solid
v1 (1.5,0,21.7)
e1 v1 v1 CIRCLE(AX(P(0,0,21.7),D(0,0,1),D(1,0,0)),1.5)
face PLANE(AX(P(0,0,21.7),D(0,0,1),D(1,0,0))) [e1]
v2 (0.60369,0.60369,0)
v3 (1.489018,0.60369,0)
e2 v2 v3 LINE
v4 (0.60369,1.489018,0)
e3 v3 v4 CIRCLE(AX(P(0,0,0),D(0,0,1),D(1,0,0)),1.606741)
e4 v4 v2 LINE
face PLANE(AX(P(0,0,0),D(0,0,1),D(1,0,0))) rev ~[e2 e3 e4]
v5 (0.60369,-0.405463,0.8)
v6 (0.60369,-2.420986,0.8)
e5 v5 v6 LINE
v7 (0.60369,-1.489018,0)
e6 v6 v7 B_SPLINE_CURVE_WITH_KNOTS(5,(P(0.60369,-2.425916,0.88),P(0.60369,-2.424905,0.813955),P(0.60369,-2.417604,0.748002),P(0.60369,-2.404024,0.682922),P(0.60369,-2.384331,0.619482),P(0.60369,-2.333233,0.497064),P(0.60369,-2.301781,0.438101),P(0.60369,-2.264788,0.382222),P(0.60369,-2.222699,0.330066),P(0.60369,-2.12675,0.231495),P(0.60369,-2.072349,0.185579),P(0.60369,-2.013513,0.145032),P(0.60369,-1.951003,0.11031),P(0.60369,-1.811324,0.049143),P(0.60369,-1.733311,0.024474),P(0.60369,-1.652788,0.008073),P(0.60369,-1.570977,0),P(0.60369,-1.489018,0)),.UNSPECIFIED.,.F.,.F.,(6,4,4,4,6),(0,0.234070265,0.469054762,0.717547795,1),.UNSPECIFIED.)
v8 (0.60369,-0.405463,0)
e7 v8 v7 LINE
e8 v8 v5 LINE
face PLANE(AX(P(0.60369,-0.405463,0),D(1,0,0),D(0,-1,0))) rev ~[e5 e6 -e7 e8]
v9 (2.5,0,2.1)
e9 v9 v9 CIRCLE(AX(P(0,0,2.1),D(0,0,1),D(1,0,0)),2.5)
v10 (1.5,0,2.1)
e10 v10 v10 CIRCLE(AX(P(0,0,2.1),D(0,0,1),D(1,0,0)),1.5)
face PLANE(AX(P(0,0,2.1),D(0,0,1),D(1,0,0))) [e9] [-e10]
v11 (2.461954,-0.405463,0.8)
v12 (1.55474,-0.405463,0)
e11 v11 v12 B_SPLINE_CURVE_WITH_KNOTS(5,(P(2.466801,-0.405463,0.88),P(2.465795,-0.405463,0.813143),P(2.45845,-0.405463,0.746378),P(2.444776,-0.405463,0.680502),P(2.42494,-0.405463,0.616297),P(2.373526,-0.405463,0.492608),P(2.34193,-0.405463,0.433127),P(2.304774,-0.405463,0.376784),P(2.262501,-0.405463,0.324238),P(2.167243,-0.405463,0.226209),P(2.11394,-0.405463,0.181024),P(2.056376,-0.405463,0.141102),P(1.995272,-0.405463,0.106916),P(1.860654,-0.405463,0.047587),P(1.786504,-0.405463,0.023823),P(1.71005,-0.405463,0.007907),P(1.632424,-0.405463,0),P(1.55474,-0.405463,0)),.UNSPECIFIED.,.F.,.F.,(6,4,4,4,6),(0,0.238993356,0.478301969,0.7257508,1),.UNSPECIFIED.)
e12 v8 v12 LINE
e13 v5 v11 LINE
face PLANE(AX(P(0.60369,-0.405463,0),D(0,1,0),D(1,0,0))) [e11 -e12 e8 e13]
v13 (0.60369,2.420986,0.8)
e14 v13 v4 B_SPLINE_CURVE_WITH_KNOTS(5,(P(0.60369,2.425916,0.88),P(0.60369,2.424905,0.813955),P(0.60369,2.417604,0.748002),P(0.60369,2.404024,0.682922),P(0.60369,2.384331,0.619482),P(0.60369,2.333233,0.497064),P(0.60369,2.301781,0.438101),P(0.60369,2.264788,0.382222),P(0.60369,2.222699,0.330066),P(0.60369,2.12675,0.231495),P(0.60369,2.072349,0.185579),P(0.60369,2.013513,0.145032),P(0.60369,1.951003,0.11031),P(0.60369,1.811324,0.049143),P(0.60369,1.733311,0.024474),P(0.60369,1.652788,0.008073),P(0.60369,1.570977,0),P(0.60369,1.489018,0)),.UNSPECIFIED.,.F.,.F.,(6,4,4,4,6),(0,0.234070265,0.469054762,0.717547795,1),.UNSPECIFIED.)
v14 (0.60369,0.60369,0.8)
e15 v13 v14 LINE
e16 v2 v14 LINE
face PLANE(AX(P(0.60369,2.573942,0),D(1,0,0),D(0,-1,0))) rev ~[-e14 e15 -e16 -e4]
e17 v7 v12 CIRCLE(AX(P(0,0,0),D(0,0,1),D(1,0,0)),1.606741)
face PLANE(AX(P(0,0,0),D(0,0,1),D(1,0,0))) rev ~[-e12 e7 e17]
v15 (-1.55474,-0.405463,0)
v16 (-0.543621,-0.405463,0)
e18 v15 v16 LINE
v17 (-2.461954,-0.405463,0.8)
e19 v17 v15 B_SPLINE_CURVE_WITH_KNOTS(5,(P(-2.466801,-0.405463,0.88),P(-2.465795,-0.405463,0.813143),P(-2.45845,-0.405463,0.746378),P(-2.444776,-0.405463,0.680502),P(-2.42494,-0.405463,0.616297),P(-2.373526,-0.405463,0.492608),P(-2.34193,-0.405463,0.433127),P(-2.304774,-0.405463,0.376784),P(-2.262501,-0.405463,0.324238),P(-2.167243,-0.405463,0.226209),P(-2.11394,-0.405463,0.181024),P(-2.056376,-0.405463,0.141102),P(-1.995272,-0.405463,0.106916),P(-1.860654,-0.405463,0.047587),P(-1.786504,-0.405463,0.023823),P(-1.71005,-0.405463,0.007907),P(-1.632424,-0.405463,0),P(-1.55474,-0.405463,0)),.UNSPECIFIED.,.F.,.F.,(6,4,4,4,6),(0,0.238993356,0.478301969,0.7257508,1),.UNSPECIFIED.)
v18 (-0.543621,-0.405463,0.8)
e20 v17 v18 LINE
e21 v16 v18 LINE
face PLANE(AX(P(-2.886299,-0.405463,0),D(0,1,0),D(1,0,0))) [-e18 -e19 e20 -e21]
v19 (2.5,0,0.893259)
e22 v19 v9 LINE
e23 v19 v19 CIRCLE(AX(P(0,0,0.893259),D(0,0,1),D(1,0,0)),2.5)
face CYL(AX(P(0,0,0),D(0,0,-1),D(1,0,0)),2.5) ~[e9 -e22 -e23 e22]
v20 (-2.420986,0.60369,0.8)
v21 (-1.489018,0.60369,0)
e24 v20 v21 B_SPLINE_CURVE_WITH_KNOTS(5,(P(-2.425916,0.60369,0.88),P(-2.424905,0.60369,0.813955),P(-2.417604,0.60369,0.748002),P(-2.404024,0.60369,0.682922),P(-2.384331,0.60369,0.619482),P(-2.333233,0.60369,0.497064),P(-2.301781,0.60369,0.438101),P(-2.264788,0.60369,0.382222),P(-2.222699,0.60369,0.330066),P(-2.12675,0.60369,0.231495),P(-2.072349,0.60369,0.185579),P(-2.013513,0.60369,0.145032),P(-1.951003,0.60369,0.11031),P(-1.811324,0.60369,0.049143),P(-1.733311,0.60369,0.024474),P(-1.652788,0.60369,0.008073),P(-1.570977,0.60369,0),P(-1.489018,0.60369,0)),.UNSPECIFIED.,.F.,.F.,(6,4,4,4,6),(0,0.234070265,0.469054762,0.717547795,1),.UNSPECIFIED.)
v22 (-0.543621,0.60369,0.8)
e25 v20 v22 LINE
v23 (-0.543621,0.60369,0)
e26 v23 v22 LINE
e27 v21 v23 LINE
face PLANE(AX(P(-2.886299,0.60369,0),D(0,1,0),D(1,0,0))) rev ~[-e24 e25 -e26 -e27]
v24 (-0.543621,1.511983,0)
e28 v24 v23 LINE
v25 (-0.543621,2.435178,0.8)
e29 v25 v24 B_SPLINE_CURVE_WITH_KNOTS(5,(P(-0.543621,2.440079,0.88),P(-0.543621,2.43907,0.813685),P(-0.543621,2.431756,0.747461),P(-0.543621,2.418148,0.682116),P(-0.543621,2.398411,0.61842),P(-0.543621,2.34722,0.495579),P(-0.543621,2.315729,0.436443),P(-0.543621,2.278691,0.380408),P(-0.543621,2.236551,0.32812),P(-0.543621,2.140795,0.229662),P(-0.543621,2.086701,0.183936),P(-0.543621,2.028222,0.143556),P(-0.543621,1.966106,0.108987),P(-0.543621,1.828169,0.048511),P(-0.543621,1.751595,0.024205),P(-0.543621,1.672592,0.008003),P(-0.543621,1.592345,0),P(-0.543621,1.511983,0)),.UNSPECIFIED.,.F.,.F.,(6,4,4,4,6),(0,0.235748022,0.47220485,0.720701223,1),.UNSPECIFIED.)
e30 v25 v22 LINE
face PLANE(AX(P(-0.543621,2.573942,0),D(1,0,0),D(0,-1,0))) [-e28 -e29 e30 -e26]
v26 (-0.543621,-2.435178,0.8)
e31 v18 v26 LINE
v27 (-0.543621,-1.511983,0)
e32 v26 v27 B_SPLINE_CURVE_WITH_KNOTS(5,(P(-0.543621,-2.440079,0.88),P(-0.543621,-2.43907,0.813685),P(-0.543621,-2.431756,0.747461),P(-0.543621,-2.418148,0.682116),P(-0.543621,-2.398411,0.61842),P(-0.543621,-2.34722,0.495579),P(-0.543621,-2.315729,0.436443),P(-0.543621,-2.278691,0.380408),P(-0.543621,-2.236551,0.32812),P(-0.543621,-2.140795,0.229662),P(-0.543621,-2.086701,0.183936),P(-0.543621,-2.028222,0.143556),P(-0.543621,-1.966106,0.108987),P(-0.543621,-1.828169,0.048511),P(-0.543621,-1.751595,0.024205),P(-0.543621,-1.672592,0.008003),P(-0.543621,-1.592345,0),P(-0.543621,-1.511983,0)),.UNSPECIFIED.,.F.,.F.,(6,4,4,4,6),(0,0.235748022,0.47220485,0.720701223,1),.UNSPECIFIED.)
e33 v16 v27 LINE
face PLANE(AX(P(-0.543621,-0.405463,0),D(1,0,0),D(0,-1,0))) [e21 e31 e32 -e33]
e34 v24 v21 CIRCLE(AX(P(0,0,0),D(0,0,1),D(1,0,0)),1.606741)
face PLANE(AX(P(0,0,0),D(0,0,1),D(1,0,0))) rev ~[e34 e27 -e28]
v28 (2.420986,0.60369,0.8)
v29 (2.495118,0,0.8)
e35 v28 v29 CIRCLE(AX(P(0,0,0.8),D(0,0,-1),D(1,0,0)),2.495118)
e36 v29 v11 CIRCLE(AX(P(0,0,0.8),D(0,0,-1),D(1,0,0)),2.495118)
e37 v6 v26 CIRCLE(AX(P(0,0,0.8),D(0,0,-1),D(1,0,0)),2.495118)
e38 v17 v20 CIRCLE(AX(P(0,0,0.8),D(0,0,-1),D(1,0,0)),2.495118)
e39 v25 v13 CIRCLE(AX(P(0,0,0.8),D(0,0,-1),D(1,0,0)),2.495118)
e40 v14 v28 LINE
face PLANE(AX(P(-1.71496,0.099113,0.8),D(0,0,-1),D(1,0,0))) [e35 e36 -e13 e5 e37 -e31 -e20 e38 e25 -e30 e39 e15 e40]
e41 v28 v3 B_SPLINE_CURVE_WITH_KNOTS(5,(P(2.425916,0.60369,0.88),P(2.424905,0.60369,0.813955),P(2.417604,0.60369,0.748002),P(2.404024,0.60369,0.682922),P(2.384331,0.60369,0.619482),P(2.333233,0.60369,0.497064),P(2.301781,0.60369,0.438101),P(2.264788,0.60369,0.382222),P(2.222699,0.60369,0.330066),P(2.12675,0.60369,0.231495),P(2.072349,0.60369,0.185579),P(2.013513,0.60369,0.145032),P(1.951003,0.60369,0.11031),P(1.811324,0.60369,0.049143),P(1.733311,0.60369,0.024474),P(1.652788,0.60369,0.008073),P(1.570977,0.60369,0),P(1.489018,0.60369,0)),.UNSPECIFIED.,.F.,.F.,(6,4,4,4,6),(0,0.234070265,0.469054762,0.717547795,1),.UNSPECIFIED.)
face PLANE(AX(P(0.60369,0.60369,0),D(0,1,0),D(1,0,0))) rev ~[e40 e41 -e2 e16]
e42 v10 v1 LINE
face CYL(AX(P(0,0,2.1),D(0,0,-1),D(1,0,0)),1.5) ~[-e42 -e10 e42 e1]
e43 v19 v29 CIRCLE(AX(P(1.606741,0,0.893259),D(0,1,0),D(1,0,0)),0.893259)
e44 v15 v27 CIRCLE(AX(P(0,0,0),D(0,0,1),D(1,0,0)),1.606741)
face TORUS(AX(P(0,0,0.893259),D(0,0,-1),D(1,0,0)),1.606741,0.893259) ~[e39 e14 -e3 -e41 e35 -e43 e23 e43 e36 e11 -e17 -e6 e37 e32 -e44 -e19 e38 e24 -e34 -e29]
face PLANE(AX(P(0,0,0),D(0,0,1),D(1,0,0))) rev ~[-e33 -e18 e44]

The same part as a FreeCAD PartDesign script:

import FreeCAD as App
import Part
import Sketcher

V = App.Vector


def edges_at(feature, points):
    """Names of the edges that pass closest to the given points."""
    edges = feature.Shape.Edges
    near = lambda p: min(range(len(edges)), key=lambda i: edges[i].distToShape(Part.Vertex(*p))[0])
    return sorted({f"Edge{near(p) + 1}" for p in points})

doc = App.newDocument("Part")
params = doc.addObject("Spreadsheet::Sheet", "Params")
for row, (alias, value) in enumerate([
    ("sketch1_diameter", "5 mm"),
    ("pad1_length", "2.1 mm"),
    ("sketch2_diameter", "3 mm"),
    ("pad2_length", "19.6 mm"),
    ("fillet_radius", "0.893259 mm"),
    ("pocket1_length", "0.8 mm"),
], start=1):
    params.set(f"A{row}", alias)
    params.set(f"B{row}", "=" + value)
    params.setAlias(f"B{row}", alias)

body = doc.addObject("PartDesign::Body", "Body")

# Sketch on XY plane
sketch1 = body.newObject("Sketcher::SketchObject", "Sketch")
sketch1.AttachmentSupport = (doc.getObject("XY_Plane"), [""])
sketch1.MapMode = "FlatFace"
sketch1.addGeometry(Part.Circle(V(0, 0, 0), V(0, 0, 1), 2.5), False)
sketch1.addConstraint([
    Sketcher.Constraint("Coincident", 0, 3, -1, 1),
    Sketcher.Constraint("Diameter", 0, 5.0),
])
sketch1.setExpression("Constraints[1]", "Params.sketch1_diameter")
pad1 = body.newObject("PartDesign::Pad", "Pad")
pad1.Profile = sketch1
pad1.setExpression("Length", "Params.pad1_length")

# Sketch on XY plane
sketch2 = body.newObject("Sketcher::SketchObject", "Sketch001")
sketch2.AttachmentSupport = (doc.getObject("XY_Plane"), [""])
sketch2.MapMode = "FlatFace"
sketch2.AttachmentOffset = App.Placement(V(0, 0, 2.1), App.Rotation())
sketch2.addGeometry(Part.Circle(V(0, 0, 0), V(0, 0, 1), 1.5), False)
sketch2.addConstraint([
    Sketcher.Constraint("Coincident", 0, 3, -1, 1),
    Sketcher.Constraint("Diameter", 0, 3.0),
])
sketch2.setExpression("Constraints[1]", "Params.sketch2_diameter")
pad2 = body.newObject("PartDesign::Pad", "Pad001")
pad2.Profile = sketch2
pad2.setExpression("Length", "Params.pad2_length")
doc.recompute()

fillet = body.newObject("PartDesign::Fillet", "Fillet")
fillet.Base = (pad2, edges_at(pad2, [(-2.5, 0, 0)]))
fillet.setExpression("Radius", "Params.fillet_radius")

# Sketch on XY plane
sketch3 = body.newObject("Sketcher::SketchObject", "Sketch002")
sketch3.AttachmentSupport = (doc.getObject("XY_Plane"), [""])
sketch3.MapMode = "FlatFace"
sketch3.addGeometry([
    Part.LineSegment(V(-2.886299, -0.405463, 0), V(-2.886299, 0.60369, 0)),  # 0
    Part.LineSegment(V(-2.886299, 0.60369, 0), V(-0.543621, 0.60369, 0)),  # 1
    Part.LineSegment(V(-0.543621, 0.60369, 0), V(-0.543621, 2.573942, 0)),  # 2
    Part.LineSegment(V(-0.543621, 2.573942, 0), V(0.60369, 2.573942, 0)),  # 3
    Part.LineSegment(V(0.60369, 2.573942, 0), V(0.60369, 0.60369, 0)),  # 4
    Part.LineSegment(V(0.60369, 0.60369, 0), V(3.234697, 0.60369, 0)),  # 5
    Part.LineSegment(V(3.234697, 0.60369, 0), V(3.234697, -0.405463, 0)),  # 6
    Part.LineSegment(V(3.234697, -0.405463, 0), V(0.60369, -0.405463, 0)),  # 7
    Part.LineSegment(V(0.60369, -0.405463, 0), V(0.60369, -2.603976, 0)),  # 8
    Part.LineSegment(V(0.60369, -2.603976, 0), V(-0.543621, -2.603976, 0)),  # 9
    Part.LineSegment(V(-0.543621, -2.603976, 0), V(-0.543621, -0.405463, 0)),  # 10
    Part.LineSegment(V(-0.543621, -0.405463, 0), V(-2.886299, -0.405463, 0)),  # 11
], False)
sketch3.addConstraint([
    Sketcher.Constraint("Coincident", 0, 2, 1, 1),
    Sketcher.Constraint("Coincident", 1, 2, 2, 1),
    Sketcher.Constraint("Coincident", 2, 2, 3, 1),
    Sketcher.Constraint("Coincident", 3, 2, 4, 1),
    Sketcher.Constraint("Coincident", 4, 2, 5, 1),
    Sketcher.Constraint("Coincident", 5, 2, 6, 1),
    Sketcher.Constraint("Coincident", 6, 2, 7, 1),
    Sketcher.Constraint("Coincident", 7, 2, 8, 1),
    Sketcher.Constraint("Coincident", 8, 2, 9, 1),
    Sketcher.Constraint("Coincident", 9, 2, 10, 1),
    Sketcher.Constraint("Coincident", 10, 2, 11, 1),
    Sketcher.Constraint("Coincident", 11, 2, 0, 1),
    Sketcher.Constraint("Vertical", 0),
    Sketcher.Constraint("Horizontal", 1),
    Sketcher.Constraint("Vertical", 2),
    Sketcher.Constraint("Horizontal", 3),
    Sketcher.Constraint("Vertical", 4),
    Sketcher.Constraint("Horizontal", 5),
    Sketcher.Constraint("Vertical", 6),
    Sketcher.Constraint("Horizontal", 7),
    Sketcher.Constraint("Vertical", 8),
    Sketcher.Constraint("Horizontal", 9),
    Sketcher.Constraint("Vertical", 10),
    Sketcher.Constraint("Horizontal", 11),
    Sketcher.Constraint("Horizontal", 1, 2, 4, 2),
    Sketcher.Constraint("Horizontal", 7, 2, 10, 2),
    Sketcher.Constraint("Vertical", 4, 2, 7, 2),
    Sketcher.Constraint("Vertical", 2, 2, 9, 2),
    Sketcher.Constraint("DistanceX", 3, 1, 3, 2, 1.147311),
    Sketcher.Constraint("DistanceY", 2, 1, 2, 2, 1.970252),
    Sketcher.Constraint("DistanceX", 0, 2, -1, 1, 2.886299),
    Sketcher.Constraint("DistanceX", 1, 1, 1, 2, 2.342677),
    Sketcher.Constraint("DistanceX", 5, 1, 5, 2, 2.631007),
    Sketcher.Constraint("DistanceY", 0, 1, 0, 2, 1.009153),
    Sketcher.Constraint("DistanceY", 8, 2, 8, 1, 2.198513),
    Sketcher.Constraint("DistanceY", -1, 1, 0, 2, 0.60369),
])
pocket1 = body.newObject("PartDesign::Pocket", "Pocket")
pocket1.Profile = sketch3
pocket1.setExpression("Length", "Params.pocket1_length")
pocket1.Reversed = True

doc.recompute()
